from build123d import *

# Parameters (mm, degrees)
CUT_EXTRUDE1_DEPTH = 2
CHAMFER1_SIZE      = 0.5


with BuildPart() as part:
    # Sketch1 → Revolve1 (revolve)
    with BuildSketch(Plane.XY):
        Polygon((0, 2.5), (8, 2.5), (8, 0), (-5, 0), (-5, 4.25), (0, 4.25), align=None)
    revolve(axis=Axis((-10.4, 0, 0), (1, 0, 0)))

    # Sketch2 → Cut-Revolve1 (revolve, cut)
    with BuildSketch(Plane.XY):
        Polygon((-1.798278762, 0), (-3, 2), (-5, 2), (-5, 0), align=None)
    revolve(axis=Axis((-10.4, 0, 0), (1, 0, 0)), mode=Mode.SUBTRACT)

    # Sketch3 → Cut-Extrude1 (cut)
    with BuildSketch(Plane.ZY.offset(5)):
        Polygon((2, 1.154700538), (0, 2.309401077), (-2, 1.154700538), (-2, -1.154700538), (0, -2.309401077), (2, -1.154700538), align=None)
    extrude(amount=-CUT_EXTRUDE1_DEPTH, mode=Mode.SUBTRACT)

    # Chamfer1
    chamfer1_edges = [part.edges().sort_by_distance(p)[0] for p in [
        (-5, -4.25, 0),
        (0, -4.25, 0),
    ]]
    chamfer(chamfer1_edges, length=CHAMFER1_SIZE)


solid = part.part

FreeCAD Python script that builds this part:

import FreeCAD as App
import Part
import Sketcher
from FreeCAD import Vector
Q = App.Units.Quantity


def edges_at(feature, points):
    """Names of the edges that pass closest to the given points."""
    edges = feature.Shape.Edges
    near = lambda p: min(range(len(edges)), key=lambda i: edges[i].distToShape(Part.Vertex(*p))[0])
    return sorted({f"Edge{near(p) + 1}" for p in points})

doc = App.newDocument("Part")
params = doc.addObject("Spreadsheet::Sheet", "Params")
for row, (alias, value) in enumerate([
    ("sketch1_width", "8 mm"),
    ("sketch1_width2", "5 mm"),
    ("sketch1_height", "2.5 mm"),
    ("sketch1_height2", "1.75 mm"),
    ("revolution_angle", "360 deg"),
    ("sketch2_width", "2 mm"),
    ("groove_angle", "360 deg"),
    ("pocket1_length", "2 mm"),
    ("chamfer_size", "0.5 mm"),
], start=1):
    params.set(f"A{row}", alias)
    params.set(f"B{row}", "=" + value)
    params.setAlias(f"B{row}", alias)

body = doc.addObject("PartDesign::Body", "Body")

# Sketch on XY plane
sketch1 = doc.addObject("Sketcher::SketchObject", "Sketch")
body.addObject(sketch1)
sketch1.AttachmentSupport = (doc.XY_Plane, [""])
sketch1.MapMode = "FlatFace"
sketch1.addGeometry(Part.LineSegment(Vector(8, 2.5, 0), Vector(0, 2.5, 0)), False)
sketch1.addGeometry(Part.LineSegment(Vector(0, 2.5, 0), Vector(0, 4.2, 0)), False)
sketch1.addGeometry(Part.LineSegment(Vector(0, 4.2, 0), Vector(-5, 4.2, 0)), False)
sketch1.addGeometry(Part.LineSegment(Vector(-5, 4.2, 0), Vector(-5, 0, 0)), False)
sketch1.addGeometry(Part.LineSegment(Vector(-5, 0, 0), Vector(8, 0, 0)), False)
sketch1.addGeometry(Part.LineSegment(Vector(8, 0, 0), Vector(8, 2.5, 0)), False)
sketch1.addConstraint(Sketcher.Constraint("Coincident", 0, 2, 1, 1))
sketch1.addConstraint(Sketcher.Constraint("Coincident", 1, 2, 2, 1))
sketch1.addConstraint(Sketcher.Constraint("Coincident", 2, 2, 3, 1))
sketch1.addConstraint(Sketcher.Constraint("Coincident", 3, 2, 4, 1))
sketch1.addConstraint(Sketcher.Constraint("Coincident", 4, 2, 5, 1))
sketch1.addConstraint(Sketcher.Constraint("Coincident", 5, 2, 0, 1))
sketch1.addConstraint(Sketcher.Constraint("Horizontal", 0))
sketch1.addConstraint(Sketcher.Constraint("Vertical", 1))
sketch1.addConstraint(Sketcher.Constraint("Horizontal", 2))
sketch1.addConstraint(Sketcher.Constraint("Vertical", 3))
sketch1.addConstraint(Sketcher.Constraint("Horizontal", 4))
sketch1.addConstraint(Sketcher.Constraint("Vertical", 5))
sketch1.addConstraint(Sketcher.Constraint("PointOnObject", 0, 2, -2))
sketch1.addConstraint(Sketcher.Constraint("PointOnObject", 3, 2, -1))
sketch1.addConstraint(Sketcher.Constraint("DistanceX", 0, 2, 0, 1, 8.0))
sketch1.addConstraint(Sketcher.Constraint("DistanceX", 2, 2, 2, 1, 5.0))
sketch1.addConstraint(Sketcher.Constraint("DistanceY", 5, 1, 5, 2, 2.5))
sketch1.addConstraint(Sketcher.Constraint("DistanceY", 1, 1, 1, 2, 1.75))
sketch1.setExpression("Constraints[14]", "Params.sketch1_width")
sketch1.setExpression("Constraints[15]", "Params.sketch1_width2")
sketch1.setExpression("Constraints[16]", "Params.sketch1_height")
sketch1.setExpression("Constraints[17]", "Params.sketch1_height2")
revolution = doc.addObject("PartDesign::Revolution", "Revolution")
body.addObject(revolution)
revolution.Profile = sketch1
revolution.ReferenceAxis = (sketch1, ["H_Axis"])
revolution.setExpression("Angle", "Params.revolution_angle")

# Sketch on XY plane
sketch2 = doc.addObject("Sketcher::SketchObject", "Sketch001")
body.addObject(sketch2)
sketch2.AttachmentSupport = (doc.XY_Plane, [""])
sketch2.MapMode = "FlatFace"
sketch2.addGeometry(Part.LineSegment(Vector(-1.8, 0, 0), Vector(-3, 2, 0)), False)
sketch2.addGeometry(Part.LineSegment(Vector(-3, 2, 0), Vector(-5, 2, 0)), False)
sketch2.addGeometry(Part.LineSegment(Vector(-5, 2, 0), Vector(-5, 0, 0)), False)
sketch2.addGeometry(Part.LineSegment(Vector(-5, 0, 0), Vector(-1.8, 0, 0)), False)
sketch2.addConstraint(Sketcher.Constraint("Coincident", 0, 2, 1, 1))
sketch2.addConstraint(Sketcher.Constraint("Coincident", 1, 2, 2, 1))
sketch2.addConstraint(Sketcher.Constraint("Coincident", 2, 2, 3, 1))
sketch2.addConstraint(Sketcher.Constraint("Coincident", 3, 2, 0, 1))
sketch2.addConstraint(Sketcher.Constraint("Horizontal", 1))
sketch2.addConstraint(Sketcher.Constraint("Vertical", 2))
sketch2.addConstraint(Sketcher.Constraint("Horizontal", 3))
sketch2.addConstraint(Sketcher.Constraint("PointOnObject", 2, 2, -1))
sketch2.addConstraint(Sketcher.Constraint("Equal", 1, 2))
sketch2.addConstraint(Sketcher.Constraint("DistanceX", 1, 2, 1, 1, 2.0))
sketch2.addConstraint(Sketcher.Constraint("Angle", 0, Q("121 deg")))
sketch2.addConstraint(Sketcher.Constraint("DistanceX", 0, 2, -1, 1, 3.0))
sketch2.setExpression("Constraints[9]", "Params.sketch2_width")
groove = doc.addObject("PartDesign::Groove", "Groove")
body.addObject(groove)
groove.Profile = sketch2
groove.ReferenceAxis = (sketch2, ["H_Axis"])
groove.setExpression("Angle", "Params.groove_angle")

# Sketch on YZ plane
sketch3 = doc.addObject("Sketcher::SketchObject", "Sketch002")
body.addObject(sketch3)
sketch3.AttachmentSupport = (doc.YZ_Plane, [""])
sketch3.MapMode = "FlatFace"
sketch3.AttachmentOffset = App.Placement(Vector(0, 0, -5), App.Rotation())
sketch3.addGeometry(Part.LineSegment(Vector(1.2, 2, 0), Vector(2.3, 0, 0)), False)
sketch3.addGeometry(Part.LineSegment(Vector(2.3, 0, 0), Vector(1.2, -2, 0)), False)
sketch3.addGeometry(Part.LineSegment(Vector(1.2, -2, 0), Vector(-1.2, -2, 0)), False)
sketch3.addGeometry(Part.LineSegment(Vector(-1.2, -2, 0), Vector(-2.3, 0, 0)), False)
sketch3.addGeometry(Part.LineSegment(Vector(-2.3, 0, 0), Vector(-1.2, 2, 0)), False)
sketch3.addGeometry(Part.LineSegment(Vector(-1.2, 2, 0), Vector(1.2, 2, 0)), False)
sketch3.addConstraint(Sketcher.Constraint("Coincident", 0, 2, 1, 1))
sketch3.addConstraint(Sketcher.Constraint("Coincident", 1, 2, 2, 1))
sketch3.addConstraint(Sketcher.Constraint("Coincident", 2, 2, 3, 1))
sketch3.addConstraint(Sketcher.Constraint("Coincident", 3, 2, 4, 1))
sketch3.addConstraint(Sketcher.Constraint("Coincident", 4, 2, 5, 1))
sketch3.addConstraint(Sketcher.Constraint("Coincident", 5, 2, 0, 1))
sketch3.addConstraint(Sketcher.Constraint("Horizontal", 2))
sketch3.addConstraint(Sketcher.Constraint("Horizontal", 5))
sketch3.addConstraint(Sketcher.Constraint("Symmetric", 0, 2, 3, 2, -1, 1))
sketch3.addConstraint(Sketcher.Constraint("Symmetric", 1, 2, 4, 2, -1, 1))
sketch3.addConstraint(Sketcher.Constraint("PointOnObject", 0, 2, -1))
sketch3.addConstraint(Sketcher.Constraint("Parallel", 0, 3))
sketch3.addConstraint(Sketcher.Constraint("Vertical", 2, 2, 4, 2))
sketch3.addConstraint(Sketcher.Constraint("Angle", 0, Q("-60 deg")))
sketch3.addConstraint(Sketcher.Constraint("DistanceY", 1, 2, -1, 1, 2.0))
sketch3.addConstraint(Sketcher.Constraint("DistanceX", 2, 2, 2, 1, 2.309401))
pocket1 = doc.addObject("PartDesign::Pocket", "Pocket")
body.addObject(pocket1)
pocket1.Profile = sketch3
pocket1.setExpression("Length", "Params.pocket1_length")
pocket1.Reversed = True
doc.recompute()

chamfer = doc.addObject("PartDesign::Chamfer", "Chamfer")
body.addObject(chamfer)
chamfer.Base = (pocket1, edges_at(pocket1, [(-5, -4.25, 0), (0, -4.25, 0)]))
chamfer.setExpression("Size", "Params.chamfer_size")

doc.recompute()
